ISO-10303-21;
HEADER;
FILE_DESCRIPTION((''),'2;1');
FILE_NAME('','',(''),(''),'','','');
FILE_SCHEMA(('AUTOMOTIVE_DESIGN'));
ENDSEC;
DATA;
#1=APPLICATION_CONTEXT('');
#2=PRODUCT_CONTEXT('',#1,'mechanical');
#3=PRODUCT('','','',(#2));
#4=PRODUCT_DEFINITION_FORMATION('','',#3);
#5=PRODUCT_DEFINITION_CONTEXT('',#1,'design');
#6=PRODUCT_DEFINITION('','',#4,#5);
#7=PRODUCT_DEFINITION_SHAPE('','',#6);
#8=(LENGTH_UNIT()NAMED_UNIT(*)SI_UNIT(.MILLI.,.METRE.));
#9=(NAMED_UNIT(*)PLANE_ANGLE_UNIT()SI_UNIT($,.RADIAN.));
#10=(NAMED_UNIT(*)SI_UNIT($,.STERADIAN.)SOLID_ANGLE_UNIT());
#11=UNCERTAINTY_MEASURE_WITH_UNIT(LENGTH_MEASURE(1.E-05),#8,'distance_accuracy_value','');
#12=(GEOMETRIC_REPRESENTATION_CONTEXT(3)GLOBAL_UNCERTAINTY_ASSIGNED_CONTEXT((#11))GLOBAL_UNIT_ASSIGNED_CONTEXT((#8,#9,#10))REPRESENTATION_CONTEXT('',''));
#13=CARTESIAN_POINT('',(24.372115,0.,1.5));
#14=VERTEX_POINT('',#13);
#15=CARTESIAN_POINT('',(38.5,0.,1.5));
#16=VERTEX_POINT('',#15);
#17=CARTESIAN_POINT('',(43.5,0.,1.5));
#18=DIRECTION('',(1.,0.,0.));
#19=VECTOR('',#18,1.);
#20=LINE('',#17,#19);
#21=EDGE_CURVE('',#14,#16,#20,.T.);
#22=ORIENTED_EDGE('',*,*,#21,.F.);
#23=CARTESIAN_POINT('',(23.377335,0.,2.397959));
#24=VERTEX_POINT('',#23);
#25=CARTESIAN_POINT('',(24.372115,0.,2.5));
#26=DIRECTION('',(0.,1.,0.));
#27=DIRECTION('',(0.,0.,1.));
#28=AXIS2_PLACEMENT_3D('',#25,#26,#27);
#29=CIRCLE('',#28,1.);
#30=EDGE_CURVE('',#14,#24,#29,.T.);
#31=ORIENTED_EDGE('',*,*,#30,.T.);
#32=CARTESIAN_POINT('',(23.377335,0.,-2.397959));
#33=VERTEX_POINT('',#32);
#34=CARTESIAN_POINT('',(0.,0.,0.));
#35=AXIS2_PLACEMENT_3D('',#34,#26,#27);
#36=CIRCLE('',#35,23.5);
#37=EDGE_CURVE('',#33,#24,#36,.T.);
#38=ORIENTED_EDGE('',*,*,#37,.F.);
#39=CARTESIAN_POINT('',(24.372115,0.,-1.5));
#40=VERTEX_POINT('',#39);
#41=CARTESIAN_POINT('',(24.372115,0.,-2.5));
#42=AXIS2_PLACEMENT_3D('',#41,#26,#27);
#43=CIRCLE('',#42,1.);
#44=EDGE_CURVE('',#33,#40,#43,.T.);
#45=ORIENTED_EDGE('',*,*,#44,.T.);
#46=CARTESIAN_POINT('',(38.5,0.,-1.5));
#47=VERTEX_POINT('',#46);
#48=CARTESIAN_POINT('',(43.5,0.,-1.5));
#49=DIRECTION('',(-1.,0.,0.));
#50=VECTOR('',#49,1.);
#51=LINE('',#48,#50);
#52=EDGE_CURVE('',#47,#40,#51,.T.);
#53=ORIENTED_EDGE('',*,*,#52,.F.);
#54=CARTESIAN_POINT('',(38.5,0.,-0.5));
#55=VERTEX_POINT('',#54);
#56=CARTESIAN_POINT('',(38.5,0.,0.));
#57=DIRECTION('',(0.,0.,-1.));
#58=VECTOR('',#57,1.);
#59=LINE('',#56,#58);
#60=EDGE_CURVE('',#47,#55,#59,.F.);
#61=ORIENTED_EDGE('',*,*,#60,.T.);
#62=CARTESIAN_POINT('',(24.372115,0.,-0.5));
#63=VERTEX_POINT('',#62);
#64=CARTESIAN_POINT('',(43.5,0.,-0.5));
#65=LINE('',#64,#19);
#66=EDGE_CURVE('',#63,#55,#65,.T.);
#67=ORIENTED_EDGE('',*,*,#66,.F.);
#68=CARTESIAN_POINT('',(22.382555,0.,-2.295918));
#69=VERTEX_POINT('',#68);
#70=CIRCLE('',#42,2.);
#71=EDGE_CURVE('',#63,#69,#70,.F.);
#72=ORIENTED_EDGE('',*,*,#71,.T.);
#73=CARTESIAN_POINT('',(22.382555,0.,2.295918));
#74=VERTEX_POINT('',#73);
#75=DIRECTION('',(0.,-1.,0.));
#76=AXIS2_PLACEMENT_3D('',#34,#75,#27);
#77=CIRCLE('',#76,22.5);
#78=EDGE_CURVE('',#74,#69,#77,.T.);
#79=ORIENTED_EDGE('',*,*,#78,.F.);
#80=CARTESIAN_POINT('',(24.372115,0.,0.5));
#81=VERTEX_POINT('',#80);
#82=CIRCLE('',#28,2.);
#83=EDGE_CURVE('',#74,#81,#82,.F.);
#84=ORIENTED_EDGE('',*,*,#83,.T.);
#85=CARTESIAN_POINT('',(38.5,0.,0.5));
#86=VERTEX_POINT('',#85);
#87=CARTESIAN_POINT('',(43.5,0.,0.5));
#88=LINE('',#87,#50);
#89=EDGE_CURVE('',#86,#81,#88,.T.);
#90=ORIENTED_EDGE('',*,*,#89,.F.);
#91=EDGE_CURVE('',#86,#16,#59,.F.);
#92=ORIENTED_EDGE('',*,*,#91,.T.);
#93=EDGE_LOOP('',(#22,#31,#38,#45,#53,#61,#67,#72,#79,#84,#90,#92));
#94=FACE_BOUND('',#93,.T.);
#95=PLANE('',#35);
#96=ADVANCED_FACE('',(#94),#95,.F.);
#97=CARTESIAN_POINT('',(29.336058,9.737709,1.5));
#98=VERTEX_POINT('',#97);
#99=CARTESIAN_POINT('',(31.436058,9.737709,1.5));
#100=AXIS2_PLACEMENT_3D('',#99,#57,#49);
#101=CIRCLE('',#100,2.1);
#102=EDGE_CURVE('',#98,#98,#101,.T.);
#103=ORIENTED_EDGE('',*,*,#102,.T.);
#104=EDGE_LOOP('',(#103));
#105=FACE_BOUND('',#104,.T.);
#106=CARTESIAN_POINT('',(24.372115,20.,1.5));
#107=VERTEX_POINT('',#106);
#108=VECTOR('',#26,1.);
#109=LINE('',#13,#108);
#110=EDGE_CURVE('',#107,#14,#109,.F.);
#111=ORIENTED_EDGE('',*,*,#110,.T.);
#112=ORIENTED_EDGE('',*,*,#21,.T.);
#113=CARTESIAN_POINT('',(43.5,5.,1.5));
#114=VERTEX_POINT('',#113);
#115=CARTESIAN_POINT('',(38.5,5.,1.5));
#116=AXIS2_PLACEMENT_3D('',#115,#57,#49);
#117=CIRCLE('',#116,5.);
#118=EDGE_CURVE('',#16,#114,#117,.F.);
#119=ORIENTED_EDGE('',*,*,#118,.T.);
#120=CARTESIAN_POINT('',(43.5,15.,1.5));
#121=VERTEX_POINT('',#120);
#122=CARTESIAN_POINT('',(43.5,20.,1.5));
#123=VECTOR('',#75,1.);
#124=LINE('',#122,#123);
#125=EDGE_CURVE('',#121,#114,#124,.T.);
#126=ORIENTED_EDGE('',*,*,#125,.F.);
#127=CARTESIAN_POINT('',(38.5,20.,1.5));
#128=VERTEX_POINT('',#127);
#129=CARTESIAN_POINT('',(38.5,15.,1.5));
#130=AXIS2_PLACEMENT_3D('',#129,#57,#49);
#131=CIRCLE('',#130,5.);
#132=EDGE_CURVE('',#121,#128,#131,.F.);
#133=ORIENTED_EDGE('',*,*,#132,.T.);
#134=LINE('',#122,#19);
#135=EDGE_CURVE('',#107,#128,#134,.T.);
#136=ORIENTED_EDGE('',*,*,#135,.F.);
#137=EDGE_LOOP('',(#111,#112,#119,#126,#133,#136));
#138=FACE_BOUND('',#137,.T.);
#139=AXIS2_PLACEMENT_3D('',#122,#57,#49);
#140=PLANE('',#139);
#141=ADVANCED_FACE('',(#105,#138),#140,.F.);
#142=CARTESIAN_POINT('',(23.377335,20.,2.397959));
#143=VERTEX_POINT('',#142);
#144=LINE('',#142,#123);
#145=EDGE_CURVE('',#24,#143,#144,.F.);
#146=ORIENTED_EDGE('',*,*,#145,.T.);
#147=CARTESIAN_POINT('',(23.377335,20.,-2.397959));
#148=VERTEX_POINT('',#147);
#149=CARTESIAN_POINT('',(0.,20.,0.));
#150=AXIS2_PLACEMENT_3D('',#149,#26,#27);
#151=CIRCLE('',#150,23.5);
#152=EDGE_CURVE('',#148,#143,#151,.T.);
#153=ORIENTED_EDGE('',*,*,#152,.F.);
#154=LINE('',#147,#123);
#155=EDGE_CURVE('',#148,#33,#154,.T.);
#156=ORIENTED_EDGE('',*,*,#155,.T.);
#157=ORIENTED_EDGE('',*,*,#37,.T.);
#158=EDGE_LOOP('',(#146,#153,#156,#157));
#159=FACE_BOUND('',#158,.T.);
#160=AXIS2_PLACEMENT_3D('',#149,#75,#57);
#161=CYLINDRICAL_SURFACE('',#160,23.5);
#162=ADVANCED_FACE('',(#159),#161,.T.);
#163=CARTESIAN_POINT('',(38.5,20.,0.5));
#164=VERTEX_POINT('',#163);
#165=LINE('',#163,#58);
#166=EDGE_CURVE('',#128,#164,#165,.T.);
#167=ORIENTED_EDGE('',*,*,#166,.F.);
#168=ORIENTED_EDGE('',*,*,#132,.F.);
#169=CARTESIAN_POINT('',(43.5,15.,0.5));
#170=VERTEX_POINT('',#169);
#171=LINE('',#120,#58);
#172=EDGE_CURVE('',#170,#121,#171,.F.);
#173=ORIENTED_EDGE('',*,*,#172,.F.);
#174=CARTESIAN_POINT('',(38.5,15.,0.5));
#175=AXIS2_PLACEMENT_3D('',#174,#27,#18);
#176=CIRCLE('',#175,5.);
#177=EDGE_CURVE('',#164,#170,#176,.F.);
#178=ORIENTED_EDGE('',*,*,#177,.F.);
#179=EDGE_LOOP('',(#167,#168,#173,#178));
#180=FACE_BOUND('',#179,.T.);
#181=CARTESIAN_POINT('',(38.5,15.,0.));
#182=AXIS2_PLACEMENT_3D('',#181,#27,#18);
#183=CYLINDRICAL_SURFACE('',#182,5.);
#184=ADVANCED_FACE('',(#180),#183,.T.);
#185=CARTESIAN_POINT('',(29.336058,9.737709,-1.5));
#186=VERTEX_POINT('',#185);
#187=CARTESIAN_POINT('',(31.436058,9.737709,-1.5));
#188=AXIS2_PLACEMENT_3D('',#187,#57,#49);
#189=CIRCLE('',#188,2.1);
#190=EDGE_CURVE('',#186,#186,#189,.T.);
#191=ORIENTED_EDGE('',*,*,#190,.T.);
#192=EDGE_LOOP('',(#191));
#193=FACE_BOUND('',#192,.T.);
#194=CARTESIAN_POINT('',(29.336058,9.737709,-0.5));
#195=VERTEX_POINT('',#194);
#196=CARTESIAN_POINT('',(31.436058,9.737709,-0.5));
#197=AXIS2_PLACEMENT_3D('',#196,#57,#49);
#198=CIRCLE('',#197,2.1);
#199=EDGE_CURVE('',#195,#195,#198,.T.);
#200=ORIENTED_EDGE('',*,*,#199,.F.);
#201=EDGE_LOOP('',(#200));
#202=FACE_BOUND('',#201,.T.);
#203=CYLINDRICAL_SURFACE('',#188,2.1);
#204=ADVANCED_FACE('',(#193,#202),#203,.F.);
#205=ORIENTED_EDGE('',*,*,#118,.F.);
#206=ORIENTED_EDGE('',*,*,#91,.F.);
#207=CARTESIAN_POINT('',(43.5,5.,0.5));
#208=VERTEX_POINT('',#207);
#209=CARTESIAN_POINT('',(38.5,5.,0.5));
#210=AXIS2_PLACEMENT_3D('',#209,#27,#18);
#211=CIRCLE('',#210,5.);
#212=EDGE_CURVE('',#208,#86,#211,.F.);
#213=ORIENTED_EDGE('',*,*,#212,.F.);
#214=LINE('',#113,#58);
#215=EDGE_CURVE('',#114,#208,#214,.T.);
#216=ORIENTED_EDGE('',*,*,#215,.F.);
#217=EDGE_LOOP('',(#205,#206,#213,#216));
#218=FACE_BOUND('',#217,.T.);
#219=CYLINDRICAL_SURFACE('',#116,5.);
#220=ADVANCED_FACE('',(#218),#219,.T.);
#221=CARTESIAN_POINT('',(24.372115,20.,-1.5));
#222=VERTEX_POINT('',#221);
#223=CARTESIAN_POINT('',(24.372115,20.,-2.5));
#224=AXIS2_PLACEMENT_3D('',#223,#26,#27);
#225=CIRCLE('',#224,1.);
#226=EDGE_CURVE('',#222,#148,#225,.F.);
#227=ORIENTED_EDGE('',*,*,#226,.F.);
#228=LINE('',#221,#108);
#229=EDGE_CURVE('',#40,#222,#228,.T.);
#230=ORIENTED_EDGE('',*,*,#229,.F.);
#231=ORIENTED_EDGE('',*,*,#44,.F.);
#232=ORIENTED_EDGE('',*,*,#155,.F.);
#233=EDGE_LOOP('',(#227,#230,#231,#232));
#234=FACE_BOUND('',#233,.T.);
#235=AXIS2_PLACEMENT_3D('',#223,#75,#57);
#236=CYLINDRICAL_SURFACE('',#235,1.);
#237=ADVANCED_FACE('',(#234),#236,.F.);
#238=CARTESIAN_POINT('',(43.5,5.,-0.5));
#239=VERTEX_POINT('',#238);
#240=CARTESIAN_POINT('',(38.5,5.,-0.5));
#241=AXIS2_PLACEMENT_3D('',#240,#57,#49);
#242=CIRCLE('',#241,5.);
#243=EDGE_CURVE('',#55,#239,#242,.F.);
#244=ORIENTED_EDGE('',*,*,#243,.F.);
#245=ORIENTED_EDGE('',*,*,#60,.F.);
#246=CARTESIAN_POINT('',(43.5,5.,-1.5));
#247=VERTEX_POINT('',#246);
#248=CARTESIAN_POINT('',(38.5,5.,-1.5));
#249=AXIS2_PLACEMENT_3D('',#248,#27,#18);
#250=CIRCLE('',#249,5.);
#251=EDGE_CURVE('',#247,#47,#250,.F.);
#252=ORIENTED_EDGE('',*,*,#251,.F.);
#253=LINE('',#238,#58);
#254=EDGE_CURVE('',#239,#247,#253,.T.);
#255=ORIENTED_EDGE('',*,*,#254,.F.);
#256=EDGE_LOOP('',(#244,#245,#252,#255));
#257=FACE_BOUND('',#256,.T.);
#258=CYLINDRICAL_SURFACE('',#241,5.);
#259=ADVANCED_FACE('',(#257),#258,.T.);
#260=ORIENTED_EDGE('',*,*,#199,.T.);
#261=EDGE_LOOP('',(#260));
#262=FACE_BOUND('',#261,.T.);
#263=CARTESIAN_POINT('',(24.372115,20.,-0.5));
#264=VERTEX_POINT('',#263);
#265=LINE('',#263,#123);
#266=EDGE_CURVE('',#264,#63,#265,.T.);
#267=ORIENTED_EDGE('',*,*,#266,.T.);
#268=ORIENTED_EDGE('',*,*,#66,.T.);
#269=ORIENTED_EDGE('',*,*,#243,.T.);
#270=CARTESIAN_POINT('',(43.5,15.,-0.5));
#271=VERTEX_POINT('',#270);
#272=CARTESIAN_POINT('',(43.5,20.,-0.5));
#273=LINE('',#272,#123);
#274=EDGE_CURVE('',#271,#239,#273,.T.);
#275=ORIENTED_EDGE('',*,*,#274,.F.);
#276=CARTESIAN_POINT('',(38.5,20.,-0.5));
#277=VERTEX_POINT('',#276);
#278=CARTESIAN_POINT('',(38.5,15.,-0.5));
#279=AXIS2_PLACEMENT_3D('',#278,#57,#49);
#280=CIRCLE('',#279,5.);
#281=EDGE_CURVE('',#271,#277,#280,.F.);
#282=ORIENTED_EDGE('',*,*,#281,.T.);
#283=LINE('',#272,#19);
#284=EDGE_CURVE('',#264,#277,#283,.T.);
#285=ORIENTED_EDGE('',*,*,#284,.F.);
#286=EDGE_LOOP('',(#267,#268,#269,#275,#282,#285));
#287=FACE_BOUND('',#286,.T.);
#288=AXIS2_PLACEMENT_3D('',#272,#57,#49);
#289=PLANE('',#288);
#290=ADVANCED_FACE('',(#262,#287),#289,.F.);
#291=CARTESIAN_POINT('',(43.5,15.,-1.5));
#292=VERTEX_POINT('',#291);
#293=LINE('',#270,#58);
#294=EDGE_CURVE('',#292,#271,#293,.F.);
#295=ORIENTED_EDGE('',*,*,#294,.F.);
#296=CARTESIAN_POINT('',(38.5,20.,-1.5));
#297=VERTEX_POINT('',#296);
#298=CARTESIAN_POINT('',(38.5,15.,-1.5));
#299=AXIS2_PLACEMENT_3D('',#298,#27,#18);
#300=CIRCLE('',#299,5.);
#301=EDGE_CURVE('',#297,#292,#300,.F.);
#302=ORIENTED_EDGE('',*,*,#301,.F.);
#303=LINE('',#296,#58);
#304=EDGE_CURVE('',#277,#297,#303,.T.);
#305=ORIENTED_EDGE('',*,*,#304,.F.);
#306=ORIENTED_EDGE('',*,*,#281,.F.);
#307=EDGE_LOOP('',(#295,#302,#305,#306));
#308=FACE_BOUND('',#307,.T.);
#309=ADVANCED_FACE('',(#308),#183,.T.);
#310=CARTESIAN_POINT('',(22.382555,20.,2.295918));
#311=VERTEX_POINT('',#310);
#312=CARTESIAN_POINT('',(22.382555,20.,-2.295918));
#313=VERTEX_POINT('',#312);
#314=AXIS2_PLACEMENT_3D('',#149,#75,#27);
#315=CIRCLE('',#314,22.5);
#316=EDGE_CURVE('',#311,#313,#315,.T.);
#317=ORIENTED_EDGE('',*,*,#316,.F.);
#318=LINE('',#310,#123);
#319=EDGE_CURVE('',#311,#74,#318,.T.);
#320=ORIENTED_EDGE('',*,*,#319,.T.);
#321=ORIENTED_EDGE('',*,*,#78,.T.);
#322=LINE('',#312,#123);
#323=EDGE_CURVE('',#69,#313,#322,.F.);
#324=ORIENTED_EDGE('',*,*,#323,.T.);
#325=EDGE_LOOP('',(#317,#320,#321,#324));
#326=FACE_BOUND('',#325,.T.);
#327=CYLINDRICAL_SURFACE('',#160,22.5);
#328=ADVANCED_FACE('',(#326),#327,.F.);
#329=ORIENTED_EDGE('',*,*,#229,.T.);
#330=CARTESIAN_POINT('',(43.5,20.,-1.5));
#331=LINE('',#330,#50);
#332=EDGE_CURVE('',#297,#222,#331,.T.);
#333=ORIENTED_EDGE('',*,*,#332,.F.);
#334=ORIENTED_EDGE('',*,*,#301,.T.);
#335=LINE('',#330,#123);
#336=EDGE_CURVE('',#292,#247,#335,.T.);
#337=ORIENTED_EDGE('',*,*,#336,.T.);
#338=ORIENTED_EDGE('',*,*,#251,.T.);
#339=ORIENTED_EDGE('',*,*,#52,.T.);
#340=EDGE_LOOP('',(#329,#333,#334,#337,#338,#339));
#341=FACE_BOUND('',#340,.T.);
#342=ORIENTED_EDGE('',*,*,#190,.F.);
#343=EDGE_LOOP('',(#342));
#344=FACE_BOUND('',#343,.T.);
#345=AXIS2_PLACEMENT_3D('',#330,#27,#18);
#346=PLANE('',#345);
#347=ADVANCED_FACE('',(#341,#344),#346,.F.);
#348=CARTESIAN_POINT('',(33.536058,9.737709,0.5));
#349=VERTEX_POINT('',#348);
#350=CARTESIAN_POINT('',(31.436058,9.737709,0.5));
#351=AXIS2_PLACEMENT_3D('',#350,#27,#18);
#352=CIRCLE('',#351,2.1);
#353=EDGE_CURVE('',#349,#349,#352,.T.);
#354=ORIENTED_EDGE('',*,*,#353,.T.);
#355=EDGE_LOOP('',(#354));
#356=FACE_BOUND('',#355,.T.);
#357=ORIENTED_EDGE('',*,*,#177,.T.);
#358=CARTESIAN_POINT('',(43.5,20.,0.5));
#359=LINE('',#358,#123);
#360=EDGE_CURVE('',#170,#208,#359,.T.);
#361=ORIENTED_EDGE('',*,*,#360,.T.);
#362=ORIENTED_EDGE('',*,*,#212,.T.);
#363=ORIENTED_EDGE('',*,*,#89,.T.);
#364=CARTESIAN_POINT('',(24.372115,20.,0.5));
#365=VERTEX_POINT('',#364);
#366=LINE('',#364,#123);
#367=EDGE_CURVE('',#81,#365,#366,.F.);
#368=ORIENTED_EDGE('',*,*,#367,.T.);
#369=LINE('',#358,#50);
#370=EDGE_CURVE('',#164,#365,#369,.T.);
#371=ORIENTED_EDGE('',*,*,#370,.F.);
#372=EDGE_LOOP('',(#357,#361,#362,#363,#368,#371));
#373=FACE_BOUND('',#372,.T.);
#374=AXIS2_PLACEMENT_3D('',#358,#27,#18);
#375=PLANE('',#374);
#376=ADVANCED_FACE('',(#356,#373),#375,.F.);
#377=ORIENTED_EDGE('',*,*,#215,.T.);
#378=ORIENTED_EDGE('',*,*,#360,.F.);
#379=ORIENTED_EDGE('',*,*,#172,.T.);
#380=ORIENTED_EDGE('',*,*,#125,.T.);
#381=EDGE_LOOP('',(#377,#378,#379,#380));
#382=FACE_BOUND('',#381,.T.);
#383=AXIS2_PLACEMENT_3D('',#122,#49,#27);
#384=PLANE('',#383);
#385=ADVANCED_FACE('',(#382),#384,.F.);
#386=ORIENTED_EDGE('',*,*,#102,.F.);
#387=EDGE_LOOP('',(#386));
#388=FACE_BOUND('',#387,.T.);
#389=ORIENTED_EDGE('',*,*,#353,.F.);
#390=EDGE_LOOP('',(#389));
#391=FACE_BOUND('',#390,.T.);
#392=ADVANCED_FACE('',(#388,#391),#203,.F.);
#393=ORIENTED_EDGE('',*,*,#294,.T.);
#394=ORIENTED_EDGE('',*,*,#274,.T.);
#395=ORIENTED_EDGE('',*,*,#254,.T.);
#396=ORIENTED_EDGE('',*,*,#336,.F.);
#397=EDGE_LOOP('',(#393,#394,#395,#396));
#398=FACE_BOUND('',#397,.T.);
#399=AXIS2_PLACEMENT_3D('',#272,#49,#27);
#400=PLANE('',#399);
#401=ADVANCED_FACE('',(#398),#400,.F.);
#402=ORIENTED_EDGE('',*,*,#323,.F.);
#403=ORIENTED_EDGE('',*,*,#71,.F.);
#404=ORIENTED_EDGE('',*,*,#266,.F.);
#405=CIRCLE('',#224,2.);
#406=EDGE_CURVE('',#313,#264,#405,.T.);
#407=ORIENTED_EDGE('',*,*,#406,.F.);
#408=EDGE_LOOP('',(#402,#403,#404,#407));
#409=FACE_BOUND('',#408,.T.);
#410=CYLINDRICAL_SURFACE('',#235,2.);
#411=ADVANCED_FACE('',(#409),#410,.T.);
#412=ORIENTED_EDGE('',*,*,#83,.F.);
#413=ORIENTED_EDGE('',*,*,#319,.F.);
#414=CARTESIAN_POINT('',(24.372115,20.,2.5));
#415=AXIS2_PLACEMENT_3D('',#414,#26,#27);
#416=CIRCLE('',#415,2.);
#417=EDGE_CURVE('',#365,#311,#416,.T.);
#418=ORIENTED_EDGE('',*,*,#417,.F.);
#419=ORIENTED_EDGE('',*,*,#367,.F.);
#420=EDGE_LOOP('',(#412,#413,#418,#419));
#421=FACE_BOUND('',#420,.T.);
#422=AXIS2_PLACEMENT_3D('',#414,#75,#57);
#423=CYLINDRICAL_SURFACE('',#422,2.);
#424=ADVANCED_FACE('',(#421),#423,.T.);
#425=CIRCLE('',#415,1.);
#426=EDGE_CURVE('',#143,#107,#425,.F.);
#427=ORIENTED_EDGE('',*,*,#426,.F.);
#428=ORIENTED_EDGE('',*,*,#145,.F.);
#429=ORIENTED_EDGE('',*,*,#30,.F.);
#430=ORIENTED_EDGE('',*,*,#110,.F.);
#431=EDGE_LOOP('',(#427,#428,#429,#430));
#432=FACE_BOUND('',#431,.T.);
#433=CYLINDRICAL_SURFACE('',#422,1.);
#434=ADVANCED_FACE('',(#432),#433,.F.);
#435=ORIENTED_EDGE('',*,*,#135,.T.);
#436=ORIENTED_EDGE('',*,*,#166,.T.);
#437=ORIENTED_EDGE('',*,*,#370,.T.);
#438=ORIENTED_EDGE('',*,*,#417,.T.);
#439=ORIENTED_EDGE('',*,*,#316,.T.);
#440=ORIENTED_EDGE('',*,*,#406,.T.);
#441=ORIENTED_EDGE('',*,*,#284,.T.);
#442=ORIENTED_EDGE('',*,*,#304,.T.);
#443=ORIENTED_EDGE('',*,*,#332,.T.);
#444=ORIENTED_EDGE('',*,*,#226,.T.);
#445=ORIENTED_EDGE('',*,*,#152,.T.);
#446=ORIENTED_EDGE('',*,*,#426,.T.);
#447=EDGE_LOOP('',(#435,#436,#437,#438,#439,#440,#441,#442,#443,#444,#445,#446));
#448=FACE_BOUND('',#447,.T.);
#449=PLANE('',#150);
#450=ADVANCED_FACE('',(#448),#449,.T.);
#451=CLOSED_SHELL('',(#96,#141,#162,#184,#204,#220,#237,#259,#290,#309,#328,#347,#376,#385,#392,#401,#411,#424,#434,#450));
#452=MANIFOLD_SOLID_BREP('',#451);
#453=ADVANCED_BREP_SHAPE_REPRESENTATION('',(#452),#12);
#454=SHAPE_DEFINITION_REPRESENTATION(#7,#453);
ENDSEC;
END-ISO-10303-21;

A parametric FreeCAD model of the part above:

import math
import FreeCAD as App
import Part
import Sketcher

V = App.Vector
Q = App.Units.Quantity


def edges_at(feature, points):
    """Names of the edges that pass closest to the given points."""
    edges = feature.Shape.Edges
    near = lambda p: min(range(len(edges)), key=lambda i: edges[i].distToShape(Part.Vertex(*p))[0])
    return sorted({f"Edge{near(p) + 1}" for p in points})

doc = App.newDocument("Part")
body = doc.addObject("PartDesign::Body", "Body")

# Sketch on XZ plane
sketch1 = body.newObject("Sketcher::SketchObject", "Sketch")
sketch1.AttachmentSupport = (doc.getObject("XZ_Plane"), [""])
sketch1.MapMode = "FlatFace"
sketch1.addGeometry([
    Part.LineSegment(V(23.5, 1.5, 0), V(43.5, 1.5, 0)),  # 0
    Part.LineSegment(V(43.5, 1.5, 0), V(43.5, 0.5, 0)),  # 1
    Part.LineSegment(V(43.5, 0.5, 0), V(22.5, 0.5, 0)),  # 2
    Part.ArcOfCircle(Part.Circle(V(0, 0, 0), V(0, 0, 1), 22.5), math.radians(1), math.radians(359)),  # 3
    Part.LineSegment(V(22.5, -0.5, 0), V(43.5, -0.5, 0)),  # 4
    Part.LineSegment(V(43.5, -0.5, 0), V(43.5, -1.5, 0)),  # 5
    Part.LineSegment(V(43.5, -1.5, 0), V(23.5, -1.5, 0)),  # 6
    Part.ArcOfCircle(Part.Circle(V(0, 0, 0), V(0, 0, 1), 23.5), math.radians(4), math.radians(356)),  # 7
], False)
sketch1.addConstraint([
    Sketcher.Constraint("Coincident", 0, 2, 1, 1),
    Sketcher.Constraint("Coincident", 1, 2, 2, 1),
    Sketcher.Constraint("Coincident", 2, 2, 3, 1),
    Sketcher.Constraint("Coincident", 3, 2, 4, 1),
    Sketcher.Constraint("Coincident", 4, 2, 5, 1),
    Sketcher.Constraint("Coincident", 5, 2, 6, 1),
    Sketcher.Constraint("Coincident", 6, 2, 7, 2),
    Sketcher.Constraint("Coincident", 7, 1, 0, 1),
    Sketcher.Constraint("Horizontal", 0),
    Sketcher.Constraint("Vertical", 1),
    Sketcher.Constraint("Horizontal", 2),
    Sketcher.Constraint("Horizontal", 4),
    Sketcher.Constraint("Vertical", 5),
    Sketcher.Constraint("Horizontal", 6),
    Sketcher.Constraint("Coincident", 3, 3, -1, 1),
    Sketcher.Constraint("Coincident", 7, 3, -1, 1),
    Sketcher.Constraint("Symmetric", 1, 2, 4, 2, -1),
    Sketcher.Constraint("Vertical", 6, 2, 7, 1),
    Sketcher.Constraint("Radius", 3, Q("22.5 mm")),
    Sketcher.Constraint("Radius", 7, Q("23.5 mm")),
    Sketcher.Constraint("DistanceY", 1, 2, 1, 1, Q("1 mm")),
    Sketcher.Constraint("DistanceY", 3, 2, 2, 2, Q("1 mm")),
    Sketcher.Constraint("DistanceX", -1, 1, 0, 2, Q("43.5 mm")),
])
pad1 = body.newObject("PartDesign::Pad", "Pad")
pad1.Profile = sketch1
pad1.Length = 20
pad1.Reversed = True
doc.recompute()

fillet = body.newObject("PartDesign::Fillet", "Fillet")
fillet.Base = (pad1, edges_at(pad1, [(22.494, 10, -0.5), (22.494, 10, 0.5)]))
fillet.Radius = 2
doc.recompute()

fillet2 = body.newObject("PartDesign::Fillet", "Fillet001")
fillet2.Base = (fillet, edges_at(fillet, [(23.452, 10, 1.5), (23.452, 10, -1.5)]))
fillet2.Radius = 1
doc.recompute()

fillet3 = body.newObject("PartDesign::Fillet", "Fillet002")
fillet3.Base = (fillet2, edges_at(fillet2, [
    (43.5, 0, -1),
    (43.5, 20, 1),
    (43.5, 20, -1),
    (43.5, 0, 1),
]))
fillet3.Radius = 5

# Sketch on XY plane
sketch2 = body.newObject("Sketcher::SketchObject", "Sketch001")
sketch2.AttachmentSupport = (doc.getObject("XY_Plane"), [""])
sketch2.MapMode = "FlatFace"
sketch2.AttachmentOffset = App.Placement(V(0, 0, -1.5), App.Rotation())
sketch2.addGeometry(Part.Circle(V(31.4, 9.7, 0), V(0, 0, 1), 2.1), False)
sketch2.addConstraint([
    Sketcher.Constraint("Diameter", 0, Q("4.2 mm")),
    Sketcher.Constraint("DistanceY", -1, 1, 0, 3, Q("9.737709 mm")),
    Sketcher.Constraint("DistanceX", -1, 1, 0, 3, Q("31.436058 mm")),
])
doc.recompute()
hole = body.newObject("PartDesign::Hole", "Hole")
hole.Profile = sketch2
hole.ThreadType = "None"
hole.Diameter = 4.2
hole.DepthType = "Dimension"
hole.Depth = 38.5
hole.DrillPoint = "Angled"
hole.DrillPointAngle = 118
hole.Reversed = True

doc.recompute()
